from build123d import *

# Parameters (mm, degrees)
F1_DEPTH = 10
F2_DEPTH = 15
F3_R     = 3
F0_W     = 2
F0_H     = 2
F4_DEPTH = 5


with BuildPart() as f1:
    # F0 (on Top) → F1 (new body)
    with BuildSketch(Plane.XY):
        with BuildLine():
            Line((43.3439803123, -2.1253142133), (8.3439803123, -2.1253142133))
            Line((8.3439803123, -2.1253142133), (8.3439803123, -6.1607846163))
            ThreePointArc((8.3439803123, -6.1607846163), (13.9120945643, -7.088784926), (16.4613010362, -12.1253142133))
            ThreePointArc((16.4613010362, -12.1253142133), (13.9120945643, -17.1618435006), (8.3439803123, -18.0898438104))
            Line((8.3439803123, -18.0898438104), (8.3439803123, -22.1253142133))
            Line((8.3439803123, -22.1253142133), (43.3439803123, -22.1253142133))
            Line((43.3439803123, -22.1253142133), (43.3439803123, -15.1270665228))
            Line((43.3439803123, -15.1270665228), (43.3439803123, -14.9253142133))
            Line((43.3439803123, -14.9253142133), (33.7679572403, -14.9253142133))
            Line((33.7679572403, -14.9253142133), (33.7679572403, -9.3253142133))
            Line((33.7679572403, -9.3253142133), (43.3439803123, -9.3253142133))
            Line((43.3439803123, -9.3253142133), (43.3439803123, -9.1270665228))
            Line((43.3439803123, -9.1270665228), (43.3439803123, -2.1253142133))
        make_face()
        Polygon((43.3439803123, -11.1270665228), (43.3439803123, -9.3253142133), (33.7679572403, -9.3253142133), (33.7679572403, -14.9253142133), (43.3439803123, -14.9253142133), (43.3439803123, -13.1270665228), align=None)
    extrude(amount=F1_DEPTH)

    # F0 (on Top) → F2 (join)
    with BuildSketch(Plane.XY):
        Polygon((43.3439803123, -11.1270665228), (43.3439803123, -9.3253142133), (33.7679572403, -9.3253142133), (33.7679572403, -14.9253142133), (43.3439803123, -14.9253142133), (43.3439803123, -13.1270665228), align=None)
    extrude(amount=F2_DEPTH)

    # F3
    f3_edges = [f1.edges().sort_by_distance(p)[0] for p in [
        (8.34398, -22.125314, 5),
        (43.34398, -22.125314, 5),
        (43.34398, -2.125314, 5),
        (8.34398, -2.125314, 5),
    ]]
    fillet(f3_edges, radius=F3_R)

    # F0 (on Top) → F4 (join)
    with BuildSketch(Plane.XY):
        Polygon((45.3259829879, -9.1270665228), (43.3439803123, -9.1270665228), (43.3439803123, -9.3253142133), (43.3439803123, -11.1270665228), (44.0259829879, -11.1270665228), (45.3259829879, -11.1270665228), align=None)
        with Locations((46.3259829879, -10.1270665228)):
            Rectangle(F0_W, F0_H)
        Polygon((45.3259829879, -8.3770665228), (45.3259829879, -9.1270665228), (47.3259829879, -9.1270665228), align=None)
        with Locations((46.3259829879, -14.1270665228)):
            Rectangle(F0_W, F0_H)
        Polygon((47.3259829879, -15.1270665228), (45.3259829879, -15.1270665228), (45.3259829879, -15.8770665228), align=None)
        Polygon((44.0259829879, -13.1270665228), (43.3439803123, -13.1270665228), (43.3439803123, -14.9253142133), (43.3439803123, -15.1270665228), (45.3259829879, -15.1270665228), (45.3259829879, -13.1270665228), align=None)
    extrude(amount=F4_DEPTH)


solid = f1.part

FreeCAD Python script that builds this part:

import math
import FreeCAD as App
import Part
import Sketcher
Q = App.Units.Quantity


def edges_at(feature, points):
    """Names of the edges that pass closest to the given points."""
    edges = feature.Shape.Edges
    near = lambda p: min(range(len(edges)), key=lambda i: edges[i].distToShape(Part.Vertex(*p))[0])
    return sorted({f"Edge{near(p) + 1}" for p in points})

doc = App.newDocument("Part")
body = doc.addObject("PartDesign::Body", "Body")

sketch1 = body.newObject("Sketcher::SketchObject", "Sketch")
sketch1.AttachmentSupport = (doc.getObject("XY_Plane"), [""])
sketch1.MapMode = "FlatFace"
sketch1.addGeometry([
    Part.LineSegment(App.Vector(43.3, -2.1, 0), App.Vector(8.3, -2.1, 0)),
    Part.LineSegment(App.Vector(8.3, -2.1, 0), App.Vector(8.3, -6.2, 0)),
    Part.ArcOfCircle(Part.Circle(App.Vector(10.2, -12.1, 0), App.Vector(0, 0, 1), 6.2), math.radians(0), math.radians(107)),
    Part.ArcOfCircle(Part.Circle(App.Vector(10.2, -12.1, 0), App.Vector(0, 0, 1), 6.2), math.radians(-107), math.radians(0)),
    Part.LineSegment(App.Vector(8.3, -18.1, 0), App.Vector(8.3, -22.1, 0)),
    Part.LineSegment(App.Vector(8.3, -22.1, 0), App.Vector(43.3, -22.1, 0)),
    Part.LineSegment(App.Vector(43.3, -22.1, 0), App.Vector(43.3, -2.1, 0)),
], False)
sketch1.addConstraint([
    Sketcher.Constraint("Coincident", 0, 2, 1, 1),
    Sketcher.Constraint("Coincident", 1, 2, 2, 2),
    Sketcher.Constraint("Tangent", 2, 1, 3, 2),
    Sketcher.Constraint("Coincident", 3, 1, 4, 1),
    Sketcher.Constraint("Coincident", 4, 2, 5, 1),
    Sketcher.Constraint("Coincident", 5, 2, 6, 1),
    Sketcher.Constraint("Coincident", 6, 2, 0, 1),
    Sketcher.Constraint("Horizontal", 0),
    Sketcher.Constraint("Vertical", 1),
    Sketcher.Constraint("Vertical", 4),
    Sketcher.Constraint("Horizontal", 5),
    Sketcher.Constraint("Vertical", 6),
    Sketcher.Constraint("Equal", 2, 3),
    Sketcher.Constraint("Horizontal", 3, 3, 2, 1),
    Sketcher.Constraint("Vertical", 1, 2, 3, 1),
    Sketcher.Constraint("Equal", 1, 4),
    Sketcher.Constraint("DistanceX", 0, 2, 0, 1, Q("35 mm")),
    Sketcher.Constraint("DistanceY", 6, 1, 6, 2, Q("20 mm")),
    Sketcher.Constraint("Radius", 2, Q("6.25 mm")),
    Sketcher.Constraint("DistanceY", 1, 2, 1, 1, Q("4.03547 mm")),
    Sketcher.Constraint("DistanceX", -1, 1, 2, 3, Q("10.211301 mm")),
    Sketcher.Constraint("DistanceY", 2, 3, -1, 1, Q("12.125314 mm")),
])
pad1 = body.newObject("PartDesign::Pad", "Pad")
pad1.Profile = sketch1
pad1.Length = 10

sketch2 = body.newObject("Sketcher::SketchObject", "Sketch001")
sketch2.AttachmentSupport = (doc.getObject("XY_Plane"), [""])
sketch2.MapMode = "FlatFace"
sketch2.addGeometry([
    Part.LineSegment(App.Vector(43, -9, 0), App.Vector(34, -9, 0)),
    Part.LineSegment(App.Vector(34, -9, 0), App.Vector(34, -15, 0)),
    Part.LineSegment(App.Vector(34, -15, 0), App.Vector(43, -15, 0)),
    Part.LineSegment(App.Vector(43, -15, 0), App.Vector(43, -9, 0)),
], False)
sketch2.addConstraint([
    Sketcher.Constraint("Coincident", 0, 2, 1, 1),
    Sketcher.Constraint("Coincident", 1, 2, 2, 1),
    Sketcher.Constraint("Coincident", 2, 2, 3, 1),
    Sketcher.Constraint("Coincident", 3, 2, 0, 1),
    Sketcher.Constraint("Horizontal", 0),
    Sketcher.Constraint("Vertical", 1),
    Sketcher.Constraint("Horizontal", 2),
    Sketcher.Constraint("Vertical", 3),
    Sketcher.Constraint("DistanceY", 1, 2, 1, 1, Q("5.6 mm")),
    Sketcher.Constraint("DistanceX", 0, 2, 0, 1, Q("9.576023 mm")),
    Sketcher.Constraint("DistanceX", -1, 1, 2, 2, Q("43.34398 mm")),
    Sketcher.Constraint("DistanceY", 0, 2, -1, 1, Q("9.325314 mm")),
])
pad2 = body.newObject("PartDesign::Pad", "Pad001")
pad2.Profile = sketch2
pad2.Length = 15
doc.recompute()

fillet = body.newObject("PartDesign::Fillet", "Fillet")
fillet.Base = (pad2, edges_at(pad2, [
    (8.344, -22.125, 5),
    (43.344, -22.125, 5),
    (43.344, -2.125, 5),
    (8.344, -2.125, 5),
]))
fillet.Radius = 3

sketch3 = body.newObject("Sketcher::SketchObject", "Sketch002")
sketch3.AttachmentSupport = (doc.getObject("XY_Plane"), [""])
sketch3.MapMode = "FlatFace"
sketch3.addGeometry([
    Part.LineSegment(App.Vector(43.3, -9.1, 0), App.Vector(43.3, -11.1, 0)),
    Part.LineSegment(App.Vector(43.3, -11.1, 0), App.Vector(47.3, -11.1, 0)),
    Part.LineSegment(App.Vector(47.3, -11.1, 0), App.Vector(47.3, -9.1, 0)),
    Part.LineSegment(App.Vector(47.3, -9.1, 0), App.Vector(45.3, -8.4, 0)),
    Part.LineSegment(App.Vector(45.3, -8.4, 0), App.Vector(45.3, -9.1, 0)),
    Part.LineSegment(App.Vector(45.3, -9.1, 0), App.Vector(43.3, -9.1, 0)),
    Part.LineSegment(App.Vector(45.3, -15.1, 0), App.Vector(45.3, -15.9, 0)),
    Part.LineSegment(App.Vector(45.3, -15.9, 0), App.Vector(47.3, -15.1, 0)),
    Part.LineSegment(App.Vector(47.3, -15.1, 0), App.Vector(47.3, -13.1, 0)),
    Part.LineSegment(App.Vector(47.3, -13.1, 0), App.Vector(43.3, -13.1, 0)),
    Part.LineSegment(App.Vector(43.3, -13.1, 0), App.Vector(43.3, -15.1, 0)),
    Part.LineSegment(App.Vector(43.3, -15.1, 0), App.Vector(45.3, -15.1, 0)),
], False)
sketch3.addConstraint([
    Sketcher.Constraint("Coincident", 0, 2, 1, 1),
    Sketcher.Constraint("Coincident", 1, 2, 2, 1),
    Sketcher.Constraint("Coincident", 2, 2, 3, 1),
    Sketcher.Constraint("Coincident", 3, 2, 4, 1),
    Sketcher.Constraint("Coincident", 4, 2, 5, 1),
    Sketcher.Constraint("Coincident", 5, 2, 0, 1),
    Sketcher.Constraint("Coincident", 6, 2, 7, 1),
    Sketcher.Constraint("Coincident", 7, 2, 8, 1),
    Sketcher.Constraint("Coincident", 8, 2, 9, 1),
    Sketcher.Constraint("Coincident", 9, 2, 10, 1),
    Sketcher.Constraint("Coincident", 10, 2, 11, 1),
    Sketcher.Constraint("Coincident", 11, 2, 6, 1),
    Sketcher.Constraint("Vertical", 0),
    Sketcher.Constraint("Horizontal", 1),
    Sketcher.Constraint("Vertical", 2),
    Sketcher.Constraint("Vertical", 4),
    Sketcher.Constraint("Horizontal", 5),
    Sketcher.Constraint("Vertical", 6),
    Sketcher.Constraint("Vertical", 8),
    Sketcher.Constraint("Horizontal", 9),
    Sketcher.Constraint("Vertical", 10),
    Sketcher.Constraint("Horizontal", 11),
    Sketcher.Constraint("Horizontal", 2, 2, 4, 2),
    Sketcher.Constraint("Horizontal", 7, 2, 10, 2),
    Sketcher.Constraint("Vertical", 4, 2, 6, 2),
    Sketcher.Constraint("Vertical", 2, 2, 7, 2),
    Sketcher.Constraint("Vertical", 5, 2, 9, 2),
    Sketcher.Constraint("Equal", 4, 6),
    Sketcher.Constraint("Equal", 2, 8),
    Sketcher.Constraint("DistanceY", 0, 2, 0, 1, Q("2 mm")),
    Sketcher.Constraint("DistanceX", 3, 2, 2, 2, Q("2 mm")),
    Sketcher.Constraint("DistanceY", 7, 2, 1, 2, Q("4 mm")),
    Sketcher.Constraint("DistanceY", 4, 2, 4, 1, Q("0.75 mm")),
    Sketcher.Constraint("DistanceX", 1, 1, 1, 2, Q("3.982003 mm")),
    Sketcher.Constraint("DistanceX", -1, 1, 0, 2, Q("43.34398 mm")),
    Sketcher.Constraint("DistanceY", 0, 2, -1, 1, Q("11.127067 mm")),
])
pad3 = body.newObject("PartDesign::Pad", "Pad002")
pad3.Profile = sketch3
pad3.Length = 5

doc.recompute()
